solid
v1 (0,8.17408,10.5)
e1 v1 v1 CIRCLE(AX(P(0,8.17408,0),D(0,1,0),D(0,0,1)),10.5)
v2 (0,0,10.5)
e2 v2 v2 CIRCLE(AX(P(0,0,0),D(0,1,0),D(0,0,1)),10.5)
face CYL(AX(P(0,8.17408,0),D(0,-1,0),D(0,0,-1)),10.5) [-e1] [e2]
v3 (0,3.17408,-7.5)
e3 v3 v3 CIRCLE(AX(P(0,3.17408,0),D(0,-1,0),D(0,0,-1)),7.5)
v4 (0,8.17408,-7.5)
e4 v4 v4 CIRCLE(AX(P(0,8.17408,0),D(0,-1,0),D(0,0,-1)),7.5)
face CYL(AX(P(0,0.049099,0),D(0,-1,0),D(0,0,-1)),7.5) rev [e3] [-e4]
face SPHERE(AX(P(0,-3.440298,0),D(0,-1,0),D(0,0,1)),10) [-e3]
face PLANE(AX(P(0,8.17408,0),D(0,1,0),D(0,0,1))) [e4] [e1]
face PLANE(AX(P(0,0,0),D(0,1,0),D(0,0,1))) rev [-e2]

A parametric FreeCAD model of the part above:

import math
import FreeCAD as App
import Part
import Sketcher
Q = App.Units.Quantity

doc = App.newDocument("Part")
body = doc.addObject("PartDesign::Body", "Body")

sketch1 = body.newObject("Sketcher::SketchObject", "Sketch")
sketch1.AttachmentSupport = (doc.getObject("XZ_Plane"), [""])
sketch1.MapMode = "FlatFace"
sketch1.addGeometry(Part.Circle(App.Vector(0, 0, 0), App.Vector(0, 0, 1), 10), False)
sketch1.addConstraint([
    Sketcher.Constraint("Coincident", 0, 3, -1, 1),
    Sketcher.Constraint("Diameter", 0, Q("21 mm")),
])
pad1 = body.newObject("PartDesign::Pad", "Pad")
pad1.Profile = sketch1
pad1.Length = 8.17408
pad1.Reversed = True

sketch2 = body.newObject("Sketcher::SketchObject", "Sketch001")
sketch2.AttachmentSupport = (doc.getObject("YZ_Plane"), [""])
sketch2.MapMode = "FlatFace"
sketch2.addGeometry([
    Part.LineSegment(App.Vector(8.2, -7.5, 0), App.Vector(8.2, 0, 0)),
    Part.LineSegment(App.Vector(8.2, 0, 0), App.Vector(6.6, 0, 0)),
    Part.ArcOfCircle(Part.Circle(App.Vector(-3.4, 0, 0), App.Vector(0, 0, 1), 10), math.radians(-49), math.radians(0)),
    Part.LineSegment(App.Vector(3.2, -7.5, 0), App.Vector(8.2, -7.5, 0)),
], False)
sketch2.addConstraint([
    Sketcher.Constraint("Coincident", 0, 2, 1, 1),
    Sketcher.Constraint("Coincident", 1, 2, 2, 2),
    Sketcher.Constraint("Coincident", 2, 1, 3, 1),
    Sketcher.Constraint("Coincident", 3, 2, 0, 1),
    Sketcher.Constraint("Vertical", 0),
    Sketcher.Constraint("Horizontal", 1),
    Sketcher.Constraint("Horizontal", 3),
    Sketcher.Constraint("PointOnObject", 2, 3, -1),
    Sketcher.Constraint("PointOnObject", 0, 2, -1),
    Sketcher.Constraint("Radius", 2, Q("10 mm")),
    Sketcher.Constraint("DistanceX", 3, 1, 3, 2, Q("5 mm")),
    Sketcher.Constraint("DistanceY", 0, 1, 0, 2, Q("7.5 mm")),
    Sketcher.Constraint("DistanceX", 2, 3, -1, 1, Q("3.440298 mm")),
])
groove = body.newObject("PartDesign::Groove", "Groove")
groove.Profile = sketch2
groove.ReferenceAxis = (sketch2, ["H_Axis"])
groove.Angle = 360

doc.recompute()
